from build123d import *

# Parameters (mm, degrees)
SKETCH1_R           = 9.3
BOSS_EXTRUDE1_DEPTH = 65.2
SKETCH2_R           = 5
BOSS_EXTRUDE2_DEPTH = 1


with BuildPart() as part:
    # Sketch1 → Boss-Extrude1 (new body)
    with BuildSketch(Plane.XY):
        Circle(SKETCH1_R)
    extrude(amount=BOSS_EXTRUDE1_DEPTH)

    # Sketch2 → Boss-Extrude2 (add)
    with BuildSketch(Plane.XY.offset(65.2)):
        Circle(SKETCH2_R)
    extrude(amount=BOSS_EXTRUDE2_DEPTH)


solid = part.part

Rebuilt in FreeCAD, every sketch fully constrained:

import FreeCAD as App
import Part
import Sketcher
from FreeCAD import Vector
Q = App.Units.Quantity

doc = App.newDocument("Part")
params = doc.addObject("Spreadsheet::Sheet", "Params")
for row, (alias, value) in enumerate([
    ("sketch1_diameter", "18.6 mm"),
    ("pad1_length", "65.2 mm"),
    ("sketch2_diameter", "10 mm"),
    ("pad2_length", "1 mm"),
], start=1):
    params.set(f"A{row}", alias)
    params.set(f"B{row}", "=" + value)
    params.setAlias(f"B{row}", alias)

body = doc.addObject("PartDesign::Body", "Body")

sketch1 = doc.addObject("Sketcher::SketchObject", "Sketch")
body.addObject(sketch1)
sketch1.AttachmentSupport = (doc.XY_Plane, [""])
sketch1.MapMode = "FlatFace"
sketch1.addGeometry(Part.Circle(Vector(0, 0, 0), Vector(0, 0, 1), 9.3), False)
sketch1.addConstraint([
    Sketcher.Constraint("Coincident", 0, 3, -1, 1),
    Sketcher.Constraint("Diameter", 0, Q("18.6 mm")),
])
sketch1.setExpression("Constraints[1]", "Params.sketch1_diameter")
pad1 = doc.addObject("PartDesign::Pad", "Pad")
body.addObject(pad1)
pad1.Profile = sketch1
pad1.setExpression("Length", "Params.pad1_length")

sketch2 = doc.addObject("Sketcher::SketchObject", "Sketch001")
body.addObject(sketch2)
sketch2.AttachmentSupport = (doc.XY_Plane, [""])
sketch2.MapMode = "FlatFace"
sketch2.AttachmentOffset = App.Placement(Vector(0, 0, 65.2), App.Rotation())
sketch2.addGeometry(Part.Circle(Vector(0, 0, 0), Vector(0, 0, 1), 5), False)
sketch2.addConstraint([
    Sketcher.Constraint("Coincident", 0, 3, -1, 1),
    Sketcher.Constraint("Diameter", 0, Q("10 mm")),
])
sketch2.setExpression("Constraints[1]", "Params.sketch2_diameter")
pad2 = doc.addObject("PartDesign::Pad", "Pad001")
body.addObject(pad2)
pad2.Profile = sketch2
pad2.setExpression("Length", "Params.pad2_length")

doc.recompute()
